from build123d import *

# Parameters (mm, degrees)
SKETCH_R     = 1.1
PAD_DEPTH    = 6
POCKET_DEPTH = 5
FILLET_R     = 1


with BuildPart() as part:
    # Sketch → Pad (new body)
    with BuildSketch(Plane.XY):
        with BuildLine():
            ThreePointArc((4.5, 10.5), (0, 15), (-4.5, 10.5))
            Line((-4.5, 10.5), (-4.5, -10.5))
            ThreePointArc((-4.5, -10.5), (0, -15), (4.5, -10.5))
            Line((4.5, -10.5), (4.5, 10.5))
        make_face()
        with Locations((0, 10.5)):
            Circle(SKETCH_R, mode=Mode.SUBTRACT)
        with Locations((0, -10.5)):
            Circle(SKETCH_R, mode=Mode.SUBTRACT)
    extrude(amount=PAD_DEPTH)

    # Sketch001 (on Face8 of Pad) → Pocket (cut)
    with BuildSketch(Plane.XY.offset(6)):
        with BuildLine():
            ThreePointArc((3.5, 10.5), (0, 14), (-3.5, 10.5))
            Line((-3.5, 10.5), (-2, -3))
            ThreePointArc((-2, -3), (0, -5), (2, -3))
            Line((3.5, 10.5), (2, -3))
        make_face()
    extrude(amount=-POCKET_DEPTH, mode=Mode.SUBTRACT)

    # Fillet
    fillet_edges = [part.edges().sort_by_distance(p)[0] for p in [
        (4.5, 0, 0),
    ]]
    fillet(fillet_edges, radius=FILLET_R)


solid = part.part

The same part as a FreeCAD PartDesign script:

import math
import FreeCAD as App
import Part
import Sketcher
from FreeCAD import Vector


def edges_at(feature, points):
    """Names of the edges that pass closest to the given points."""
    edges = feature.Shape.Edges
    near = lambda p: min(range(len(edges)), key=lambda i: edges[i].distToShape(Part.Vertex(*p))[0])
    return sorted({f"Edge{near(p) + 1}" for p in points})

doc = App.newDocument("Part")
body = doc.addObject("PartDesign::Body", "Body")

sketch1 = doc.addObject("Sketcher::SketchObject", "Sketch")
body.addObject(sketch1)
sketch1.AttachmentSupport = (doc.XY_Plane, [""])
sketch1.MapMode = "FlatFace"
sketch1.addGeometry(Part.ArcOfCircle(Part.Circle(Vector(0, 10.5, 0), Vector(0, 0, 1), 4.5), math.radians(0), math.radians(180)), False)
sketch1.addGeometry(Part.LineSegment(Vector(-4.5, 10.5, 0), Vector(-4.5, -10.5, 0)), False)
sketch1.addGeometry(Part.ArcOfCircle(Part.Circle(Vector(0, -10.5, 0), Vector(0, 0, 1), 4.5), math.radians(180), math.radians(360)), False)
sketch1.addGeometry(Part.LineSegment(Vector(4.5, -10.5, 0), Vector(4.5, 10.5, 0)), False)
sketch1.addGeometry(Part.Circle(Vector(0, -10.5, 0), Vector(0, 0, 1), 1.1), False)
sketch1.addGeometry(Part.Circle(Vector(0, 10.5, 0), Vector(0, 0, 1), 1.1), False)
sketch1.addConstraint(Sketcher.Constraint("Tangent", 0, 2, 1, 1))
sketch1.addConstraint(Sketcher.Constraint("Tangent", 1, 2, 2, 1))
sketch1.addConstraint(Sketcher.Constraint("Tangent", 2, 2, 3, 1))
sketch1.addConstraint(Sketcher.Constraint("Tangent", 3, 2, 0, 1))
sketch1.addConstraint(Sketcher.Constraint("Vertical", 1))
sketch1.addConstraint(Sketcher.Constraint("Vertical", 3))
sketch1.addConstraint(Sketcher.Constraint("Coincident", 4, 3, 2, 3))
sketch1.addConstraint(Sketcher.Constraint("Coincident", 5, 3, 0, 3))
sketch1.addConstraint(Sketcher.Constraint("Equal", 4, 5))
sketch1.addConstraint(Sketcher.Constraint("Symmetric", 0, 3, 2, 3, -1, 1))
sketch1.addConstraint(Sketcher.Constraint("Diameter", 4, 2.2))
sketch1.addConstraint(Sketcher.Constraint("Radius", 0, 4.5))
sketch1.addConstraint(Sketcher.Constraint("DistanceY", 1, 2, 1, 1, 21.0))
pad1 = doc.addObject("PartDesign::Pad", "Pad")
body.addObject(pad1)
pad1.Profile = sketch1
pad1.Length = 6

sketch2 = doc.addObject("Sketcher::SketchObject", "Sketch001")
body.addObject(sketch2)
sketch2.AttachmentSupport = (doc.XY_Plane, [""])
sketch2.MapMode = "FlatFace"
sketch2.AttachmentOffset = App.Placement(Vector(0, 0, 6), App.Rotation())
sketch2.addGeometry(Part.ArcOfCircle(Part.Circle(Vector(0, 10.5, 0), Vector(0, 0, 1), 3.5), math.radians(0), math.radians(180)), False)
sketch2.addGeometry(Part.LineSegment(Vector(-3.5, 10.5, 0), Vector(-2, -3, 0)), False)
sketch2.addGeometry(Part.ArcOfCircle(Part.Circle(Vector(0, -3, 0), Vector(0, 0, 1), 2), math.radians(180), math.radians(360)), False)
sketch2.addGeometry(Part.LineSegment(Vector(2, -3, 0), Vector(3.5, 10.5, 0)), False)
sketch2.addConstraint(Sketcher.Constraint("Coincident", 0, 2, 1, 1))
sketch2.addConstraint(Sketcher.Constraint("Coincident", 1, 2, 2, 1))
sketch2.addConstraint(Sketcher.Constraint("Coincident", 2, 2, 3, 1))
sketch2.addConstraint(Sketcher.Constraint("Coincident", 3, 2, 0, 1))
sketch2.addConstraint(Sketcher.Constraint("Symmetric", 1, 2, 2, 2, -2))
sketch2.addConstraint(Sketcher.Constraint("Symmetric", 0, 2, 3, 2, -2))
sketch2.addConstraint(Sketcher.Constraint("Horizontal", 2, 3, 1, 2))
sketch2.addConstraint(Sketcher.Constraint("Radius", 2, 2.0))
sketch2.addConstraint(Sketcher.Constraint("Radius", 0, 3.5))
sketch2.addConstraint(Sketcher.Constraint("DistanceY", 2, 3, -1, 1, 3.0))
sketch2.addConstraint(Sketcher.Constraint("DistanceY", -1, 1, 0, 3, 10.5))
sketch2.addConstraint(Sketcher.Constraint("DistanceY", -1, 1, 0, 2, 10.5))
pocket1 = doc.addObject("PartDesign::Pocket", "Pocket")
body.addObject(pocket1)
pocket1.Profile = sketch2
pocket1.Length = 5
doc.recompute()

fillet = doc.addObject("PartDesign::Fillet", "Fillet")
body.addObject(fillet)
fillet.Base = (pocket1, edges_at(pocket1, [(4.5, 0, 0)]))
fillet.Radius = 1

doc.recompute()
